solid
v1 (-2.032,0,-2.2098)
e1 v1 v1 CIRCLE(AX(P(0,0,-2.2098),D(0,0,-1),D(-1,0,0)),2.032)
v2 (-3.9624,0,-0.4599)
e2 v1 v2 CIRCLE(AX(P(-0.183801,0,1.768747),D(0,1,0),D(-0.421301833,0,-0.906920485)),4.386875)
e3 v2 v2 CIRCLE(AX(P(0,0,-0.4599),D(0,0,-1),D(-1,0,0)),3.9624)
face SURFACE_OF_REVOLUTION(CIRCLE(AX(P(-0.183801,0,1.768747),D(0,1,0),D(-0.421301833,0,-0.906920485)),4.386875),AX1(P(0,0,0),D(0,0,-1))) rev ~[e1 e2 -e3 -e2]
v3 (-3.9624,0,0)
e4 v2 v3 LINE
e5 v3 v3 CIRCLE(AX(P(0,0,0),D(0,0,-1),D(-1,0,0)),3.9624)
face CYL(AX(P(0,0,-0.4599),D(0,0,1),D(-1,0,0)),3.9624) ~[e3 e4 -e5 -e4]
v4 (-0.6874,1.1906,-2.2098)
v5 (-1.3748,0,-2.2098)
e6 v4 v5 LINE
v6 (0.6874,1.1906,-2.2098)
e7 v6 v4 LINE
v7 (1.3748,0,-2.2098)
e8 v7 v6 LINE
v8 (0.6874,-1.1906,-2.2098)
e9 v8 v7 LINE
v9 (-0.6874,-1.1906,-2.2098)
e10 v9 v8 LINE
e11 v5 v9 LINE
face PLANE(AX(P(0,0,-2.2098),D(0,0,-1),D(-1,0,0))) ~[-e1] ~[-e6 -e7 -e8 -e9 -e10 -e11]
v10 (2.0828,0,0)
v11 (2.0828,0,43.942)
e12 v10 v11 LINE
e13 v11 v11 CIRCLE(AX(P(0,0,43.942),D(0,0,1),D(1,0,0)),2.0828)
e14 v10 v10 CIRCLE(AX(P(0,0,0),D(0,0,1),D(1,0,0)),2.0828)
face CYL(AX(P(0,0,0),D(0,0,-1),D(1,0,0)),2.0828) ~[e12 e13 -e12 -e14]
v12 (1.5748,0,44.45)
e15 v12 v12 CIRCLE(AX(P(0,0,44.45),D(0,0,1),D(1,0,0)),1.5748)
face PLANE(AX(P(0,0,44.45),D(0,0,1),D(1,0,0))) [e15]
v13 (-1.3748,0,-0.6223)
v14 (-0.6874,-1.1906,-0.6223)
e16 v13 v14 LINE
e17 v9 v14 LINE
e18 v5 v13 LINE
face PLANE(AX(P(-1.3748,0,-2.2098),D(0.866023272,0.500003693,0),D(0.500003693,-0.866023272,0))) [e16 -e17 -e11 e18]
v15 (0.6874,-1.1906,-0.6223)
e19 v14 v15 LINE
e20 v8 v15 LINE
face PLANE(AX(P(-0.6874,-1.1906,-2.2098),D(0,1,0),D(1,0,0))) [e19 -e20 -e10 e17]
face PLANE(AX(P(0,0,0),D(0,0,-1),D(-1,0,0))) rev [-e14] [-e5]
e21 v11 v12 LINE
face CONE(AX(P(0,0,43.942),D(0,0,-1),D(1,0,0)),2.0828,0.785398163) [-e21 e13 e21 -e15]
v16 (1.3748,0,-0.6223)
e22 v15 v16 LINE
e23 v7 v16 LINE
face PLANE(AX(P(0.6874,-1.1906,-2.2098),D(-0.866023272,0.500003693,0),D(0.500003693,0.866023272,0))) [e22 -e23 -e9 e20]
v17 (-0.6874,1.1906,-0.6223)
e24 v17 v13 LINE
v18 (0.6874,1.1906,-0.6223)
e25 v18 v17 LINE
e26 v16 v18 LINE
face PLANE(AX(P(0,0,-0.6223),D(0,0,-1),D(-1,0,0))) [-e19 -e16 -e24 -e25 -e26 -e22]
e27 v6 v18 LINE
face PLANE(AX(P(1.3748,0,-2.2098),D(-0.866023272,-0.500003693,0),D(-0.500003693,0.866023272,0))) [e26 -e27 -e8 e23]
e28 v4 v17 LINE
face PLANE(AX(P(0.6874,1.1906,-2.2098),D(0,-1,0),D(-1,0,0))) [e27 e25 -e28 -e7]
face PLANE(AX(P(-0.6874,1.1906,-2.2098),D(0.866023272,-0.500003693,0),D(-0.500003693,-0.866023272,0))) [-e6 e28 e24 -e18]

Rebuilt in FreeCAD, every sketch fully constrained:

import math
import FreeCAD as App
import Part
import Sketcher

V = App.Vector
Q = App.Units.Quantity


def edges_at(feature, points):
    """Names of the edges that pass closest to the given points."""
    edges = feature.Shape.Edges
    near = lambda p: min(range(len(edges)), key=lambda i: edges[i].distToShape(Part.Vertex(*p))[0])
    return sorted({f"Edge{near(p) + 1}" for p in points})

doc = App.newDocument("Part")
body = doc.addObject("PartDesign::Body", "Body")

# Sketch on XY plane
sketch1 = body.newObject("Sketcher::SketchObject", "Sketch")
sketch1.AttachmentSupport = (doc.getObject("XY_Plane"), [""])
sketch1.MapMode = "FlatFace"
sketch1.addGeometry(Part.Circle(V(0, 0, 0), V(0, 0, 1), 2.1), False)
sketch1.addConstraint(Sketcher.Constraint("Coincident", 0, 3, -1, 1))
sketch1.addConstraint(Sketcher.Constraint("Diameter", 0, Q("0.164 in")))
pad1 = body.newObject("PartDesign::Pad", "Pad")
pad1.Profile = sketch1
pad1.Length = Q("1.75 in")

# Sketch on XZ plane
sketch2 = body.newObject("Sketcher::SketchObject", "Sketch001")
sketch2.AttachmentSupport = (doc.getObject("XZ_Plane"), [""])
sketch2.MapMode = "FlatFace"
sketch2.addGeometry(Part.LineSegment(V(-3.96, 0, 0), V(0, 0, 0)), False)
sketch2.addGeometry(Part.LineSegment(V(0, 0, 0), V(0, -2.21, 0)), False)
sketch2.addGeometry(Part.LineSegment(V(0, -2.21, 0), V(-2.03, -2.21, 0)), False)
sketch2.addGeometry(Part.ArcOfCircle(Part.Circle(V(-0.18, 1.77, 0), V(0, 0, 1), 4.39), math.radians(-149), math.radians(-115)), False)
sketch2.addGeometry(Part.LineSegment(V(-3.96, -0.46, 0), V(-3.96, 0, 0)), False)
sketch2.addConstraint(Sketcher.Constraint("Coincident", 0, 2, 1, 1))
sketch2.addConstraint(Sketcher.Constraint("Coincident", 1, 2, 2, 1))
sketch2.addConstraint(Sketcher.Constraint("Coincident", 2, 2, 3, 2))
sketch2.addConstraint(Sketcher.Constraint("Coincident", 3, 1, 4, 1))
sketch2.addConstraint(Sketcher.Constraint("Coincident", 4, 2, 0, 1))
sketch2.addConstraint(Sketcher.Constraint("Horizontal", 0))
sketch2.addConstraint(Sketcher.Constraint("Vertical", 1))
sketch2.addConstraint(Sketcher.Constraint("Horizontal", 2))
sketch2.addConstraint(Sketcher.Constraint("Vertical", 4))
sketch2.addConstraint(Sketcher.Constraint("Coincident", 0, 2, -1, 1))
sketch2.addConstraint(Sketcher.Constraint("DistanceX", 2, 2, 2, 1, Q("0.08 in")))
sketch2.addConstraint(Sketcher.Constraint("DistanceX", 0, 1, 0, 2, Q("0.156 in")))
sketch2.addConstraint(Sketcher.Constraint("DistanceY", 1, 2, 1, 1, Q("0.087 in")))
sketch2.addConstraint(Sketcher.Constraint("Radius", 3, 4.387))
sketch2.addConstraint(Sketcher.Constraint("DistanceY", 4, 1, 4, 2, Q("0.0181 in")))
revolution = body.newObject("PartDesign::Revolution", "Revolution")
revolution.Profile = sketch2
revolution.ReferenceAxis = (sketch2, ["V_Axis"])
revolution.Angle = 360

# Sketch on XY plane
sketch3 = body.newObject("Sketcher::SketchObject", "Sketch002")
sketch3.AttachmentSupport = (doc.getObject("XY_Plane"), [""])
sketch3.MapMode = "FlatFace"
sketch3.AttachmentOffset = App.Placement(V(0, 0, -0.087 * 25.4), App.Rotation())
sketch3.addGeometry(Part.LineSegment(V(-0.7, 1.2, 0), V(0.7, 1.2, 0)), False)
sketch3.addGeometry(Part.LineSegment(V(0.7, 1.2, 0), V(1.4, 0, 0)), False)
sketch3.addGeometry(Part.LineSegment(V(1.4, 0, 0), V(0.7, -1.2, 0)), False)
sketch3.addGeometry(Part.LineSegment(V(0.7, -1.2, 0), V(-0.7, -1.2, 0)), False)
sketch3.addGeometry(Part.LineSegment(V(-0.7, -1.2, 0), V(-1.4, 0, 0)), False)
sketch3.addGeometry(Part.LineSegment(V(-1.4, 0, 0), V(-0.7, 1.2, 0)), False)
sketch3.addConstraint(Sketcher.Constraint("Coincident", 0, 2, 1, 1))
sketch3.addConstraint(Sketcher.Constraint("Coincident", 1, 2, 2, 1))
sketch3.addConstraint(Sketcher.Constraint("Coincident", 2, 2, 3, 1))
sketch3.addConstraint(Sketcher.Constraint("Coincident", 3, 2, 4, 1))
sketch3.addConstraint(Sketcher.Constraint("Coincident", 4, 2, 5, 1))
sketch3.addConstraint(Sketcher.Constraint("Coincident", 5, 2, 0, 1))
sketch3.addConstraint(Sketcher.Constraint("Horizontal", 0))
sketch3.addConstraint(Sketcher.Constraint("Horizontal", 3))
sketch3.addConstraint(Sketcher.Constraint("Symmetric", 0, 2, 3, 2, -1, 1))
sketch3.addConstraint(Sketcher.Constraint("Symmetric", 1, 2, 4, 2, -1, 1))
sketch3.addConstraint(Sketcher.Constraint("PointOnObject", 1, 2, -1))
sketch3.addConstraint(Sketcher.Constraint("Parallel", 2, 5))
sketch3.addConstraint(Sketcher.Constraint("Vertical", 0, 2, 2, 2))
sketch3.addConstraint(Sketcher.Constraint("Angle", 1, Q("-59.9998 deg")))
sketch3.addConstraint(Sketcher.Constraint("DistanceY", 2, 2, 0, 2, Q("0.093748 in")))
sketch3.addConstraint(Sketcher.Constraint("DistanceX", 0, 1, 0, 2, 1.3748))
pocket1 = body.newObject("PartDesign::Pocket", "Pocket")
pocket1.Profile = sketch3
pocket1.Length = Q("0.0625 in")
pocket1.Reversed = True
doc.recompute()

chamfer = body.newObject("PartDesign::Chamfer", "Chamfer")
chamfer.Base = (pocket1, edges_at(pocket1, [(-2.083, 0, 44.45)]))
chamfer.Size = Q("0.02 in")

doc.recompute()
